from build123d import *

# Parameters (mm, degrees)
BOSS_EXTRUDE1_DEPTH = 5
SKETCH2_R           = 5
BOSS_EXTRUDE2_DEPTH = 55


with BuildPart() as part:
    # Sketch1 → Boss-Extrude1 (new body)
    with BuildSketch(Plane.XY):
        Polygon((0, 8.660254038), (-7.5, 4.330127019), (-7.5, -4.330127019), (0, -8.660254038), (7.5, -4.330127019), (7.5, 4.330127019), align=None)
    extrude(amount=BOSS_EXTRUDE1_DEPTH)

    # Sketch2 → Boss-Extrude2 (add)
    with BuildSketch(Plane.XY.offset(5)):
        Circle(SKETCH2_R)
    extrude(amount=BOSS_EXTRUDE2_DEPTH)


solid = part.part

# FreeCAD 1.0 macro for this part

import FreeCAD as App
import Part
import Sketcher
from FreeCAD import Vector
Q = App.Units.Quantity


def add_polygon(sketch, points):
    """Adds a closed chain of lines whose ends are joined by coincident constraints."""
    first, n = sketch.GeometryCount, len(points)
    for a, b in zip(points, points[1:] + points[:1]):
        sketch.addGeometry(Part.LineSegment(App.Vector(*a, 0), App.Vector(*b, 0)), False)
    for i in range(n):
        sketch.addConstraint(Sketcher.Constraint("Coincident", first + i, 2, first + (i + 1) % n, 1))

doc = App.newDocument("Part")
body = doc.addObject("PartDesign::Body", "Body")

sketch1 = doc.addObject("Sketcher::SketchObject", "Sketch")
body.addObject(sketch1)
sketch1.AttachmentSupport = (doc.XY_Plane, [""])
sketch1.MapMode = "FlatFace"
add_polygon(sketch1, [(0, 9), (-8, 4), (-8, -4), (0, -9), (8, -4), (8, 4)])
sketch1.addConstraint(Sketcher.Constraint("Vertical", 1))
sketch1.addConstraint(Sketcher.Constraint("Vertical", 4))
sketch1.addConstraint(Sketcher.Constraint("Symmetric", 0, 2, 3, 2, -1, 1))
sketch1.addConstraint(Sketcher.Constraint("Symmetric", 2, 2, 5, 2, -1, 1))
sketch1.addConstraint(Sketcher.Constraint("PointOnObject", 2, 2, -2))
sketch1.addConstraint(Sketcher.Constraint("Parallel", 2, 5))
sketch1.addConstraint(Sketcher.Constraint("Horizontal", 1, 2, 3, 2))
sketch1.addConstraint(Sketcher.Constraint("Angle", 0, Q("-150 deg")))
sketch1.addConstraint(Sketcher.Constraint("DistanceX", 1, 2, 3, 2, Q("15 mm")))
sketch1.addConstraint(Sketcher.Constraint("DistanceY", 1, 2, 1, 1, Q("8.660254 mm")))
pad1 = doc.addObject("PartDesign::Pad", "Pad")
body.addObject(pad1)
pad1.Profile = sketch1
pad1.Length = 5

sketch2 = doc.addObject("Sketcher::SketchObject", "Sketch001")
body.addObject(sketch2)
sketch2.AttachmentSupport = (doc.XY_Plane, [""])
sketch2.MapMode = "FlatFace"
sketch2.AttachmentOffset = App.Placement(Vector(0, 0, 5), App.Rotation())
sketch2.addGeometry(Part.Circle(Vector(0, 0, 0), Vector(0, 0, 1), 5), False)
sketch2.addConstraint(Sketcher.Constraint("Coincident", 0, 3, -1, 1))
sketch2.addConstraint(Sketcher.Constraint("Diameter", 0, Q("10 mm")))
pad2 = doc.addObject("PartDesign::Pad", "Pad001")
body.addObject(pad2)
pad2.Profile = sketch2
pad2.Length = 55

doc.recompute()
